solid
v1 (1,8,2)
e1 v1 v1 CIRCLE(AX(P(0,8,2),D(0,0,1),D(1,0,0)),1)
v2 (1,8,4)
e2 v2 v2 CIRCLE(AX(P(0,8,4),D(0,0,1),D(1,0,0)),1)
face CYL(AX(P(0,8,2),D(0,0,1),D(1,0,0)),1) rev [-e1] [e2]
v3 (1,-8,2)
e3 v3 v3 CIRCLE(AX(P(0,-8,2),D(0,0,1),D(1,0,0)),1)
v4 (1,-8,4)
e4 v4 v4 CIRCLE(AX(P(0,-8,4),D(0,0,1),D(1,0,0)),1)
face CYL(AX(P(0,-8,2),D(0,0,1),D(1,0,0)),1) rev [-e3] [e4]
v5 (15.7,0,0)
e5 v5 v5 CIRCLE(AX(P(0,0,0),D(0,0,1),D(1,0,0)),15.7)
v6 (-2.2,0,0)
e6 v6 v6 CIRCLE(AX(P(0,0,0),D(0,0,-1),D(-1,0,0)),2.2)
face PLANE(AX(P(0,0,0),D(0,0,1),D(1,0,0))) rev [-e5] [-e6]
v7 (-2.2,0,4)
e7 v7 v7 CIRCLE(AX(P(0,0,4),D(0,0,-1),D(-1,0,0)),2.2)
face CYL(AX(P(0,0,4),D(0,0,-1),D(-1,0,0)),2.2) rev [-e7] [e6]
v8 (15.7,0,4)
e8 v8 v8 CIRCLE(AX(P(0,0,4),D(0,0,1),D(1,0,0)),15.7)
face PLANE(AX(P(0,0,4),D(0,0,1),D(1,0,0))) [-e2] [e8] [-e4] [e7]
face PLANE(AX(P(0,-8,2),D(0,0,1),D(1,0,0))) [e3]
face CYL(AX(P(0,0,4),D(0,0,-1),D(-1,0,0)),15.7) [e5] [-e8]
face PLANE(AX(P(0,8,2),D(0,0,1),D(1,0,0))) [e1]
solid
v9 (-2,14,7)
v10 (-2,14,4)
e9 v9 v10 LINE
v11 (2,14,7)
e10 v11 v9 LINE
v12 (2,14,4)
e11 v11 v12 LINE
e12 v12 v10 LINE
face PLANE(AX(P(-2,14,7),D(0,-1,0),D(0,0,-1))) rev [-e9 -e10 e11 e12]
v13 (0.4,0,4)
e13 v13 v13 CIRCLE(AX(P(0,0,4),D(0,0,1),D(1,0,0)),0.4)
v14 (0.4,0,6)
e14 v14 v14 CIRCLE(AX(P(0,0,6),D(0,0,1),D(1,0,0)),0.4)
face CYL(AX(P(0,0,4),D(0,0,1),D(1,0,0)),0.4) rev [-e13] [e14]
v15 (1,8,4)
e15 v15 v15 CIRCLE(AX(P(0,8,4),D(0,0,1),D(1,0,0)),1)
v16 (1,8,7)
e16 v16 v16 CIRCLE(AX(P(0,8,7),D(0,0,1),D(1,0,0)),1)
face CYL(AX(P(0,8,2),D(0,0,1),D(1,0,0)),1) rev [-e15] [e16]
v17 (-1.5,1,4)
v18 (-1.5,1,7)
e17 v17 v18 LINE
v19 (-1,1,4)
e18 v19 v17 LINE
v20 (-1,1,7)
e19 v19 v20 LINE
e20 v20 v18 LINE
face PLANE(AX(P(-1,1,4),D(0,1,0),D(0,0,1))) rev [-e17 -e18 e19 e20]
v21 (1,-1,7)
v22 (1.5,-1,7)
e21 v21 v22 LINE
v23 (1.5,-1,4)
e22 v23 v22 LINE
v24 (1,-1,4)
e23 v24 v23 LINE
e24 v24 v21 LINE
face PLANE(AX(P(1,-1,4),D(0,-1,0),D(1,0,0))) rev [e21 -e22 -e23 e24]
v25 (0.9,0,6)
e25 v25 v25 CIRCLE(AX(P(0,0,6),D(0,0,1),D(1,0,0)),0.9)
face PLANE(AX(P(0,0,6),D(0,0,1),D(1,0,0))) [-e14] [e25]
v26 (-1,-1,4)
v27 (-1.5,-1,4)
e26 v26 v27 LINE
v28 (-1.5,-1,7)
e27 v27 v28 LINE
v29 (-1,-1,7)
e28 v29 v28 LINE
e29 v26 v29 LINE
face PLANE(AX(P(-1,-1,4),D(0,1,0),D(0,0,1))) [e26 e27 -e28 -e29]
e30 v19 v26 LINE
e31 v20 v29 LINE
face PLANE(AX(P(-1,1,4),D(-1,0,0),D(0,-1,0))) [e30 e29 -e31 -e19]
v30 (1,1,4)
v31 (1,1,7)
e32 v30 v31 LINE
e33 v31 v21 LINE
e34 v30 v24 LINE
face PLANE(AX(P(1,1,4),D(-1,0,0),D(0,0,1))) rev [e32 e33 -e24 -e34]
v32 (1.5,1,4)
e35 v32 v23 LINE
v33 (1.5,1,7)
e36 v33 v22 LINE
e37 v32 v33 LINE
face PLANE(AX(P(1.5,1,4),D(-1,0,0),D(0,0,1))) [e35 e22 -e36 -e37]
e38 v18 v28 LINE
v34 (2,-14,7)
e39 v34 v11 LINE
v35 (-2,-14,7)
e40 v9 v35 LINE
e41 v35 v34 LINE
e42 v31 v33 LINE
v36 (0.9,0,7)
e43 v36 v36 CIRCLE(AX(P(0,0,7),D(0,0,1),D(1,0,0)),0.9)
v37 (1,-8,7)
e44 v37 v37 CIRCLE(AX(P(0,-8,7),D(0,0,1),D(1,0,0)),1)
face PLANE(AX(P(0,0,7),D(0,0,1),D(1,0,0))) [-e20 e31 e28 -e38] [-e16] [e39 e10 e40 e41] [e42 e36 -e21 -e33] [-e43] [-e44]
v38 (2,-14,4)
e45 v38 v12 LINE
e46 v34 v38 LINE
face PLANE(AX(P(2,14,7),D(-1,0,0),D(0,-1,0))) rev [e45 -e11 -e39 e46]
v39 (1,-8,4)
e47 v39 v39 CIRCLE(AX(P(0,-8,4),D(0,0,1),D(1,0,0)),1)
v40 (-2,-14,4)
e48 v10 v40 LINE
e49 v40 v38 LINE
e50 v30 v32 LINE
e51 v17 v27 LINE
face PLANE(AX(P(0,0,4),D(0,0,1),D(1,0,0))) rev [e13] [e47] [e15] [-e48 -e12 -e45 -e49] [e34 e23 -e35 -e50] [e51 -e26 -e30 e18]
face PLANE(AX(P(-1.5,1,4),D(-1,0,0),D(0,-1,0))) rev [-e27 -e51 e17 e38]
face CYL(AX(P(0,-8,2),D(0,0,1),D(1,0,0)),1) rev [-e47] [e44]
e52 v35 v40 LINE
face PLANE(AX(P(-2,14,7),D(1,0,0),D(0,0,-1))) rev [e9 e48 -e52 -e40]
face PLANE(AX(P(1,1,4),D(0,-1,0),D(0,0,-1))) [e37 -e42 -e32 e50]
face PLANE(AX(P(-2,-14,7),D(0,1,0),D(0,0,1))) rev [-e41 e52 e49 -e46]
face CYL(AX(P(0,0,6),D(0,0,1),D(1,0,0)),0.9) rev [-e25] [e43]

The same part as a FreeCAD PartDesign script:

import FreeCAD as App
import Part
import Sketcher

V = App.Vector


def add_polygon(sketch, points):
    """Adds a closed chain of lines whose ends are joined by coincident constraints."""
    first, n = sketch.GeometryCount, len(points)
    for a, b in zip(points, points[1:] + points[:1]):
        sketch.addGeometry(Part.LineSegment(App.Vector(*a, 0), App.Vector(*b, 0)), False)
    for i in range(n):
        sketch.addConstraint(Sketcher.Constraint("Coincident", first + i, 2, first + (i + 1) % n, 1))

doc = App.newDocument("Part")
body = doc.addObject("PartDesign::Body", "Body")

sketch1 = doc.addObject("Sketcher::SketchObject", "Sketch")
body.addObject(sketch1)
sketch1.AttachmentSupport = (doc.XY_Plane, [""])
sketch1.MapMode = "FlatFace"
sketch1.addGeometry(Part.Circle(V(0, 0, 0), V(0, 0, 1), 16), False)
sketch1.addConstraint([
    Sketcher.Constraint("Coincident", 0, 3, -1, 1),
    Sketcher.Constraint("Diameter", 0, 31.4),
])
pad1 = doc.addObject("PartDesign::Pad", "Pad")
body.addObject(pad1)
pad1.Profile = sketch1
pad1.Length = 4

sketch2 = doc.addObject("Sketcher::SketchObject", "Sketch001")
body.addObject(sketch2)
sketch2.AttachmentSupport = (doc.XY_Plane, [""])
sketch2.MapMode = "FlatFace"
sketch2.addGeometry(Part.Circle(V(0, 0, 0), V(0, 0, 1), 2.2), False)
sketch2.addConstraint([
    Sketcher.Constraint("Coincident", 0, 3, -1, 1),
    Sketcher.Constraint("Diameter", 0, 4.4),
])
pocket1 = doc.addObject("PartDesign::Pocket", "Pocket")
body.addObject(pocket1)
pocket1.Profile = sketch2
pocket1.Length = 4
pocket1.Reversed = True
body2 = doc.addObject("PartDesign::Body", "Body001")

sketch3 = doc.addObject("Sketcher::SketchObject", "Sketch002")
body2.addObject(sketch3)
sketch3.AttachmentSupport = (doc.getObject("XY_Plane001"), [""])
sketch3.MapMode = "FlatFace"
sketch3.AttachmentOffset = App.Placement(V(0, 0, 4), App.Rotation())
add_polygon(sketch3, [(-2, 14), (-2, -14), (2, -14), (2, 14)])
sketch3.addConstraint([
    Sketcher.Constraint("Vertical", 0),
    Sketcher.Constraint("Horizontal", 1),
    Sketcher.Constraint("Vertical", 2),
    Sketcher.Constraint("Horizontal", 3),
    Sketcher.Constraint("Symmetric", 0, 2, 2, 2, -1, 1),
    Sketcher.Constraint("DistanceX", 1, 1, 1, 2, 4.0),
    Sketcher.Constraint("DistanceY", 0, 2, 0, 1, 28.0),
])
pad2 = doc.addObject("PartDesign::Pad", "Pad001")
body2.addObject(pad2)
pad2.Profile = sketch3
pad2.Length = 3

sketch4 = doc.addObject("Sketcher::SketchObject", "Sketch003")
body2.addObject(sketch4)
sketch4.AttachmentSupport = (doc.getObject("XY_Plane001"), [""])
sketch4.MapMode = "FlatFace"
sketch4.AttachmentOffset = App.Placement(V(0, 0, 7), App.Rotation())
sketch4.addGeometry(Part.Circle(V(0, 0, 0), V(0, 0, 1), 0.9), False)
sketch4.addConstraint([
    Sketcher.Constraint("Coincident", 0, 3, -1, 1),
    Sketcher.Constraint("Diameter", 0, 1.8),
])
pocket2 = doc.addObject("PartDesign::Pocket", "Pocket001")
body2.addObject(pocket2)
pocket2.Profile = sketch4
pocket2.Length = 1

sketch5 = doc.addObject("Sketcher::SketchObject", "Sketch004")
body2.addObject(sketch5)
sketch5.AttachmentSupport = (doc.getObject("XY_Plane001"), [""])
sketch5.MapMode = "FlatFace"
sketch5.AttachmentOffset = App.Placement(V(0, 0, 6), App.Rotation())
sketch5.addGeometry(Part.Circle(V(0, 0, 0), V(0, 0, 1), 0.4), False)
sketch5.addConstraint([
    Sketcher.Constraint("Coincident", 0, 3, -1, 1),
    Sketcher.Constraint("Diameter", 0, 0.8),
])
pocket3 = doc.addObject("PartDesign::Pocket", "Pocket002")
body2.addObject(pocket3)
pocket3.Profile = sketch5
pocket3.Length = 2

sketch6 = doc.addObject("Sketcher::SketchObject", "Sketch005")
body2.addObject(sketch6)
sketch6.AttachmentSupport = (doc.getObject("XY_Plane001"), [""])
sketch6.MapMode = "FlatFace"
sketch6.AttachmentOffset = App.Placement(V(0, 0, 7), App.Rotation())
add_polygon(sketch6, [(1, 1), (1, -1), (1.5, -1), (1.5, 1)])
add_polygon(sketch6, [(-1.5, 1), (-1.5, -1), (-1, -1), (-1, 1)])
sketch6.addConstraint([
    Sketcher.Constraint("Vertical", 0),
    Sketcher.Constraint("Horizontal", 1),
    Sketcher.Constraint("Vertical", 2),
    Sketcher.Constraint("Horizontal", 3),
    Sketcher.Constraint("Vertical", 4),
    Sketcher.Constraint("Horizontal", 5),
    Sketcher.Constraint("Vertical", 6),
    Sketcher.Constraint("Horizontal", 7),
    Sketcher.Constraint("Symmetric", 2, 2, 4, 2, -1, 1),
    Sketcher.Constraint("Symmetric", 0, 2, 6, 2, -1, 1),
    Sketcher.Constraint("Horizontal", 1, 2, 4, 2),
    Sketcher.Constraint("DistanceY", 0, 2, 0, 1, 2.0),
    Sketcher.Constraint("DistanceX", 1, 1, 1, 2, 0.5),
    Sketcher.Constraint("DistanceX", -1, 1, 0, 2, 1.0),
])
pocket4 = doc.addObject("PartDesign::Pocket", "Pocket003")
body2.addObject(pocket4)
pocket4.Profile = sketch6
pocket4.Length = 3
body3 = doc.addObject("PartDesign::Body", "Body002")
body3.AllowCompound = True

sketch7 = doc.addObject("Sketcher::SketchObject", "Sketch006")
body3.addObject(sketch7)
sketch7.AttachmentSupport = (doc.getObject("XY_Plane002"), [""])
sketch7.MapMode = "FlatFace"
sketch7.AttachmentOffset = App.Placement(V(0, 0, 7), App.Rotation())
sketch7.addGeometry([
    Part.Circle(V(0, 8, 0), V(0, 0, 1), 1),
    Part.Circle(V(0, -8, 0), V(0, 0, 1), 1),
], False)
sketch7.addConstraint([
    Sketcher.Constraint("Equal", 0, 1),
    Sketcher.Constraint("Symmetric", 0, 3, 1, 3, -1, 1),
    Sketcher.Constraint("PointOnObject", 0, 3, -2),
    Sketcher.Constraint("Diameter", 0, 2.0),
    Sketcher.Constraint("DistanceY", -1, 1, 0, 3, 8.0),
])
pad3 = doc.addObject("PartDesign::Pad", "Pad002")
body3.addObject(pad3)
pad3.Profile = sketch7
pad3.Length = 5
pad3.Reversed = True
doc.recompute()

body4 = doc.addObject("PartDesign::Body", "Body003")
body4.BaseFeature = body3
boolean = doc.addObject("PartDesign::Boolean", "Boolean")
body.addObject(boolean)
boolean.Type = "Cut"
boolean.addObjects([body4])
doc.recompute()

boolean2 = doc.addObject("PartDesign::Boolean", "Boolean001")
body2.addObject(boolean2)
boolean2.Type = "Cut"
boolean2.addObjects([body3])

doc.recompute()
